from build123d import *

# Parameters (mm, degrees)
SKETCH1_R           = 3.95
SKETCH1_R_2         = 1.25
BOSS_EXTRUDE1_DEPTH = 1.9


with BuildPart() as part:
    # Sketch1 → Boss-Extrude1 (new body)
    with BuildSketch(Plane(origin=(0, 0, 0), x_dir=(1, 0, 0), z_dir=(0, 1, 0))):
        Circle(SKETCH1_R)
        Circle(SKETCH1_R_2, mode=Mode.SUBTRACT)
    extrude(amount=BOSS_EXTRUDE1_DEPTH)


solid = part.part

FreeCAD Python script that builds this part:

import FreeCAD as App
import Part
import Sketcher
from FreeCAD import Vector
Q = App.Units.Quantity

doc = App.newDocument("Part")
params = doc.addObject("Spreadsheet::Sheet", "Params")
for row, (alias, value) in enumerate([
    ("sketch1_diameter", "7.9 mm"),
    ("sketch1_diameter2", "2.5 mm"),
    ("pad1_length", "1.9 mm"),
], start=1):
    params.set(f"A{row}", alias)
    params.set(f"B{row}", "=" + value)
    params.setAlias(f"B{row}", alias)

body = doc.addObject("PartDesign::Body", "Body")

sketch1 = body.newObject("Sketcher::SketchObject", "Sketch")
sketch1.AttachmentSupport = (doc.getObject("XZ_Plane"), [""])
sketch1.MapMode = "FlatFace"
sketch1.addGeometry([
    Part.Circle(Vector(0, 0, 0), Vector(0, 0, 1), 4),
    Part.Circle(Vector(0, 0, 0), Vector(0, 0, 1), 1.2),
], False)
sketch1.addConstraint([
    Sketcher.Constraint("Coincident", 0, 3, -1, 1),
    Sketcher.Constraint("Coincident", 1, 3, -1, 1),
    Sketcher.Constraint("Diameter", 0, Q("7.9 mm")),
    Sketcher.Constraint("Diameter", 1, Q("2.5 mm")),
])
sketch1.setExpression("Constraints[2]", "Params.sketch1_diameter")
sketch1.setExpression("Constraints[3]", "Params.sketch1_diameter2")
pad1 = body.newObject("PartDesign::Pad", "Pad")
pad1.Profile = sketch1
pad1.setExpression("Length", "Params.pad1_length")
pad1.Reversed = True

doc.recompute()
